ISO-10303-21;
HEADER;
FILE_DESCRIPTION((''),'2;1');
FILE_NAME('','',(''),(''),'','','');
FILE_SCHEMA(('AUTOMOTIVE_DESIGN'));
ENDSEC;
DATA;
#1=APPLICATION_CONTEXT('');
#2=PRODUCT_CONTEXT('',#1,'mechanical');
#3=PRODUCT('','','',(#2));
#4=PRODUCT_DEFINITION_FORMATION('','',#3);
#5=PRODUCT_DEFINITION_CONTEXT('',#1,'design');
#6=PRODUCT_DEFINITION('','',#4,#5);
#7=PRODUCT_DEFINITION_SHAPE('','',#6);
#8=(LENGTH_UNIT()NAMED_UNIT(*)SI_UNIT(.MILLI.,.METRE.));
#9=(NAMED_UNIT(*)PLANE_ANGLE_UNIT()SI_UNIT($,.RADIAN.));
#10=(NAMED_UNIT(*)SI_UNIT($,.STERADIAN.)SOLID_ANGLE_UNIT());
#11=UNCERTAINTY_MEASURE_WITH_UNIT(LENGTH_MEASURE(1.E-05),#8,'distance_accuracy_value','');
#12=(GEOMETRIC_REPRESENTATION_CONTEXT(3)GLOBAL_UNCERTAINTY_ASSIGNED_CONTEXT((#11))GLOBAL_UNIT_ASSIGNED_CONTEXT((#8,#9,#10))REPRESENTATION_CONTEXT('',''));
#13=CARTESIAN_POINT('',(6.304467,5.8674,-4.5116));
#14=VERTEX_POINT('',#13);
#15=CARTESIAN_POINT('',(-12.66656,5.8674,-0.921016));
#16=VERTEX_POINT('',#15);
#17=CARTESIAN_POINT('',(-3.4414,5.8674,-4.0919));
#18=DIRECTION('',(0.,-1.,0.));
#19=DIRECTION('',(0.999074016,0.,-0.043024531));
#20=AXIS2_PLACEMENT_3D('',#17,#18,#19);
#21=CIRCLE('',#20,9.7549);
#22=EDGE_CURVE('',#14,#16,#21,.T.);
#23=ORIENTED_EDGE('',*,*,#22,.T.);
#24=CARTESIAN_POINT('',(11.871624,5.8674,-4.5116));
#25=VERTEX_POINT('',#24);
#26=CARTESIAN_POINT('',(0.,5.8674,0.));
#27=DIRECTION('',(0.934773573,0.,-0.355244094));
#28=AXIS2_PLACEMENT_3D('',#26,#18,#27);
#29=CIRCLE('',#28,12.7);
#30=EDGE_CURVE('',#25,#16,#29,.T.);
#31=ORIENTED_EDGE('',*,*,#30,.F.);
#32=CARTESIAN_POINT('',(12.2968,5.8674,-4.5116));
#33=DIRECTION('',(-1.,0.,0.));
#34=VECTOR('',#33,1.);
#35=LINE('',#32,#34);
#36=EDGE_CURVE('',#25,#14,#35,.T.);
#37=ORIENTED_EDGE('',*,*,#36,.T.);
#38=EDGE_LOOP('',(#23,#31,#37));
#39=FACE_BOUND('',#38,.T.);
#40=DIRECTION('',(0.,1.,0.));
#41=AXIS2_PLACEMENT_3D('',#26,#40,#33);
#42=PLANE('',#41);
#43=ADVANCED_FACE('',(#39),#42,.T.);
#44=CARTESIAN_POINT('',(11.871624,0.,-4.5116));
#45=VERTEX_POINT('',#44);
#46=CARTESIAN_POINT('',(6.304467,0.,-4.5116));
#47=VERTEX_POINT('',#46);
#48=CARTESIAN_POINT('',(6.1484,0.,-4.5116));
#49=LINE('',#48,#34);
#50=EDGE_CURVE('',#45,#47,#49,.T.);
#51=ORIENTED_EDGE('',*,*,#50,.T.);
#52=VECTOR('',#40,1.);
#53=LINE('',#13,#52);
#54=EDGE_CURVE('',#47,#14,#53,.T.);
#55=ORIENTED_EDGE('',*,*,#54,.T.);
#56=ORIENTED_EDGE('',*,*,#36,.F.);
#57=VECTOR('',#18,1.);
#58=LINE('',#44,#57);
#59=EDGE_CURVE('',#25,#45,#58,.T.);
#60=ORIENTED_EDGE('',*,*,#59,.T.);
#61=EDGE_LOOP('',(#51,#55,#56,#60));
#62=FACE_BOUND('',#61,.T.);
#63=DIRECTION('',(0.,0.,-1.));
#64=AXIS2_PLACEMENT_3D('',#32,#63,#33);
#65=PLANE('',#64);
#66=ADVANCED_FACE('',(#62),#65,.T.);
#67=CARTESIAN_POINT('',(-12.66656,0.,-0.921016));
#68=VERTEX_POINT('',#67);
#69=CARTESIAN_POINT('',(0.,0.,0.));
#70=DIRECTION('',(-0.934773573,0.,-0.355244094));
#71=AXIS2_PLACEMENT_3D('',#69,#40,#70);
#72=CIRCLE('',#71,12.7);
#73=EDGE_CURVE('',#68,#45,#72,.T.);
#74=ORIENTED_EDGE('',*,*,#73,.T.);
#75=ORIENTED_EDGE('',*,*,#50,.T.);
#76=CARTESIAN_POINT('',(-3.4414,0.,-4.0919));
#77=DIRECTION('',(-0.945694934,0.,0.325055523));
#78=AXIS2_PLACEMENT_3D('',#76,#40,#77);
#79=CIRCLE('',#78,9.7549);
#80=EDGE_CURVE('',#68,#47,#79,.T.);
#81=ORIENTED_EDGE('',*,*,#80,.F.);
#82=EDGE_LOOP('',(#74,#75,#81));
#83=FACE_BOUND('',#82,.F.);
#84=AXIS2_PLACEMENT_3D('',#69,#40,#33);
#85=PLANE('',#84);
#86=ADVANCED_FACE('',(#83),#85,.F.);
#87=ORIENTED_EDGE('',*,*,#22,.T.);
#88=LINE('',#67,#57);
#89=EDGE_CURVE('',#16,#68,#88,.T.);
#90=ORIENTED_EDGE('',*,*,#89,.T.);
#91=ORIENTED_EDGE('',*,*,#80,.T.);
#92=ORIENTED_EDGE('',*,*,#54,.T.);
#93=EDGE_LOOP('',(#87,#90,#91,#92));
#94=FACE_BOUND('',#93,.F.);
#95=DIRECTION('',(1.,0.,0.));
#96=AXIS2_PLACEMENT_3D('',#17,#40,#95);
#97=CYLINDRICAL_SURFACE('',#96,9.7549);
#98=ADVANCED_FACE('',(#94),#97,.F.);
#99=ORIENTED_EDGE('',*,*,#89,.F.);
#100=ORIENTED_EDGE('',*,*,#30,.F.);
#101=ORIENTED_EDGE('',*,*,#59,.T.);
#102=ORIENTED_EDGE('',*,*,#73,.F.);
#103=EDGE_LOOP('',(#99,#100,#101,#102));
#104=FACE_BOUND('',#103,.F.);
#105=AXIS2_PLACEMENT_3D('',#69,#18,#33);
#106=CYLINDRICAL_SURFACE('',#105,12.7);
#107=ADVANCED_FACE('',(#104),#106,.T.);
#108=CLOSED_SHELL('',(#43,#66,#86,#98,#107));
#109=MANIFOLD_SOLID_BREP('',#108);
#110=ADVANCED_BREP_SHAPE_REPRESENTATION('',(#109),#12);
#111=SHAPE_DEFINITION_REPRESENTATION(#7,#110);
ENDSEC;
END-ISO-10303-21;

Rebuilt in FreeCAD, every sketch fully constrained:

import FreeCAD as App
import Part
import Sketcher

V = App.Vector
Q = App.Units.Quantity


def add_polygon(sketch, points):
    """Adds a closed chain of lines whose ends are joined by coincident constraints."""
    first, n = sketch.GeometryCount, len(points)
    for a, b in zip(points, points[1:] + points[:1]):
        sketch.addGeometry(Part.LineSegment(App.Vector(*a, 0), App.Vector(*b, 0)), False)
    for i in range(n):
        sketch.addConstraint(Sketcher.Constraint("Coincident", first + i, 2, first + (i + 1) % n, 1))

doc = App.newDocument("Part")
body = doc.addObject("PartDesign::Body", "Body")

# Sketch on XZ plane
sketch1 = body.newObject("Sketcher::SketchObject", "Sketch")
sketch1.AttachmentSupport = (doc.getObject("XZ_Plane"), [""])
sketch1.MapMode = "FlatFace"
sketch1.addGeometry(Part.Circle(V(0, 0, 0), V(0, 0, 1), 12.7), False)
sketch1.addConstraint(Sketcher.Constraint("Coincident", 0, 3, -1, 1))
sketch1.addConstraint(Sketcher.Constraint("Diameter", 0, Q("1 in")))
pad1 = body.newObject("PartDesign::Pad", "Pad")
pad1.Profile = sketch1
pad1.Length = Q("0.231 in")
pad1.Reversed = True

# Sketch on XZ plane
sketch2 = body.newObject("Sketcher::SketchObject", "Sketch001")
sketch2.AttachmentSupport = (doc.getObject("XZ_Plane"), [""])
sketch2.MapMode = "FlatFace"
sketch2.AttachmentOffset = App.Placement(V(0, 0, -0.231 * 25.4), App.Rotation())
add_polygon(sketch2, [(-7.7692, 0), (0, 0), (0, -6.975), (-7.7692, -6.975)])  # lines 0-3
sketch2.addConstraint(Sketcher.Constraint("Horizontal", 0))
sketch2.addConstraint(Sketcher.Constraint("Vertical", 1))
sketch2.addConstraint(Sketcher.Constraint("Horizontal", 2))
sketch2.addConstraint(Sketcher.Constraint("Vertical", 3))
sketch2.addConstraint(Sketcher.Constraint("Coincident", 0, 2, -1, 1))
sketch2.addConstraint(Sketcher.Constraint("DistanceY", 1, 2, 1, 1, Q("0.2746 in")))
sketch2.addConstraint(Sketcher.Constraint("DistanceX", 0, 1, 0, 2, 7.7692))
pocket1 = body.newObject("PartDesign::Pocket", "Pocket")
pocket1.Profile = sketch2
pocket1.Length = Q("10 in")
pocket1.Reversed = True

# Sketch on XZ plane
sketch3 = body.newObject("Sketcher::SketchObject", "Sketch002")
sketch3.AttachmentSupport = (doc.getObject("XZ_Plane"), [""])
sketch3.MapMode = "FlatFace"
sketch3.AttachmentOffset = App.Placement(V(0, 0, -0.231 * 25.4), App.Rotation())
add_polygon(sketch3, [(5.0945, -6.018), (0, -6.018), (0, -4.5769), (5.0945, -4.5769)])  # lines 0-3
sketch3.addConstraint(Sketcher.Constraint("Horizontal", 0))
sketch3.addConstraint(Sketcher.Constraint("Vertical", 1))
sketch3.addConstraint(Sketcher.Constraint("Horizontal", 2))
sketch3.addConstraint(Sketcher.Constraint("Vertical", 3))
sketch3.addConstraint(Sketcher.Constraint("PointOnObject", 0, 2, -2))
sketch3.addConstraint(Sketcher.Constraint("DistanceX", 0, 2, 0, 1, 5.0945))
sketch3.addConstraint(Sketcher.Constraint("DistanceY", 1, 1, 1, 2, 1.441))
sketch3.addConstraint(Sketcher.Constraint("DistanceY", 1, 2, -1, 1, Q("0.1802 in")))
pocket2 = body.newObject("PartDesign::Pocket", "Pocket001")
pocket2.Profile = sketch3
pocket2.Length = Q("10 in")
pocket2.Reversed = True

# Sketch on XZ plane
sketch4 = body.newObject("Sketcher::SketchObject", "Sketch003")
sketch4.AttachmentSupport = (doc.getObject("XZ_Plane"), [""])
sketch4.MapMode = "FlatFace"
sketch4.AttachmentOffset = App.Placement(V(0, 0, -0.231 * 25.4), App.Rotation())
sketch4.addGeometry(Part.Circle(V(-2.0297, 0, 0), V(0, 0, 1), 3.9608), False)
sketch4.addConstraint(Sketcher.Constraint("PointOnObject", 0, 3, -1))
sketch4.addConstraint(Sketcher.Constraint("Diameter", 0, 7.9216))
sketch4.addConstraint(Sketcher.Constraint("DistanceX", 0, 3, -1, 1, Q("0.0799 in")))
pocket3 = body.newObject("PartDesign::Pocket", "Pocket002")
pocket3.Profile = sketch4
pocket3.Length = Q("10 in")
pocket3.Reversed = True

# Sketch on XZ plane
sketch5 = body.newObject("Sketcher::SketchObject", "Sketch004")
sketch5.AttachmentSupport = (doc.getObject("XZ_Plane"), [""])
sketch5.MapMode = "FlatFace"
sketch5.AttachmentOffset = App.Placement(V(0, 0, -0.231 * 25.4), App.Rotation())
add_polygon(sketch5, [(-14.5211, -4.5116), (12.2968, -4.5116), (12.2968, -13.7027), (-14.5211, -13.7027)])  # lines 0-3
sketch5.addConstraint(Sketcher.Constraint("Horizontal", 0))
sketch5.addConstraint(Sketcher.Constraint("Vertical", 1))
sketch5.addConstraint(Sketcher.Constraint("Horizontal", 2))
sketch5.addConstraint(Sketcher.Constraint("Vertical", 3))
sketch5.addConstraint(Sketcher.Constraint("DistanceX", 0, 1, 0, 2, 26.818))
sketch5.addConstraint(Sketcher.Constraint("DistanceY", 1, 2, 1, 1, 9.191))
sketch5.addConstraint(Sketcher.Constraint("DistanceX", 2, 2, -1, 1, Q("0.5717 in")))
sketch5.addConstraint(Sketcher.Constraint("DistanceY", 0, 2, -1, 1, 4.5116))
pocket4 = body.newObject("PartDesign::Pocket", "Pocket003")
pocket4.Profile = sketch5
pocket4.Length = Q("10 in")
pocket4.Reversed = True

# Sketch on XZ plane
sketch6 = body.newObject("Sketcher::SketchObject", "Sketch005")
sketch6.AttachmentSupport = (doc.getObject("XZ_Plane"), [""])
sketch6.MapMode = "FlatFace"
sketch6.AttachmentOffset = App.Placement(V(0, 0, -0.231 * 25.4), App.Rotation())
sketch6.addGeometry(Part.Circle(V(-3.4414, -4.0919, 0), V(0, 0, 1), 9.7549), False)
sketch6.addConstraint(Sketcher.Constraint("Diameter", 0, Q("0.7681 in")))
sketch6.addConstraint(Sketcher.Constraint("DistanceX", 0, 3, -1, 1, Q("0.1355 in")))
sketch6.addConstraint(Sketcher.Constraint("DistanceY", 0, 3, -1, 1, Q("0.1611 in")))
pocket5 = body.newObject("PartDesign::Pocket", "Pocket004")
pocket5.Profile = sketch6
pocket5.Length = Q("10 in")
pocket5.Reversed = True

doc.recompute()
